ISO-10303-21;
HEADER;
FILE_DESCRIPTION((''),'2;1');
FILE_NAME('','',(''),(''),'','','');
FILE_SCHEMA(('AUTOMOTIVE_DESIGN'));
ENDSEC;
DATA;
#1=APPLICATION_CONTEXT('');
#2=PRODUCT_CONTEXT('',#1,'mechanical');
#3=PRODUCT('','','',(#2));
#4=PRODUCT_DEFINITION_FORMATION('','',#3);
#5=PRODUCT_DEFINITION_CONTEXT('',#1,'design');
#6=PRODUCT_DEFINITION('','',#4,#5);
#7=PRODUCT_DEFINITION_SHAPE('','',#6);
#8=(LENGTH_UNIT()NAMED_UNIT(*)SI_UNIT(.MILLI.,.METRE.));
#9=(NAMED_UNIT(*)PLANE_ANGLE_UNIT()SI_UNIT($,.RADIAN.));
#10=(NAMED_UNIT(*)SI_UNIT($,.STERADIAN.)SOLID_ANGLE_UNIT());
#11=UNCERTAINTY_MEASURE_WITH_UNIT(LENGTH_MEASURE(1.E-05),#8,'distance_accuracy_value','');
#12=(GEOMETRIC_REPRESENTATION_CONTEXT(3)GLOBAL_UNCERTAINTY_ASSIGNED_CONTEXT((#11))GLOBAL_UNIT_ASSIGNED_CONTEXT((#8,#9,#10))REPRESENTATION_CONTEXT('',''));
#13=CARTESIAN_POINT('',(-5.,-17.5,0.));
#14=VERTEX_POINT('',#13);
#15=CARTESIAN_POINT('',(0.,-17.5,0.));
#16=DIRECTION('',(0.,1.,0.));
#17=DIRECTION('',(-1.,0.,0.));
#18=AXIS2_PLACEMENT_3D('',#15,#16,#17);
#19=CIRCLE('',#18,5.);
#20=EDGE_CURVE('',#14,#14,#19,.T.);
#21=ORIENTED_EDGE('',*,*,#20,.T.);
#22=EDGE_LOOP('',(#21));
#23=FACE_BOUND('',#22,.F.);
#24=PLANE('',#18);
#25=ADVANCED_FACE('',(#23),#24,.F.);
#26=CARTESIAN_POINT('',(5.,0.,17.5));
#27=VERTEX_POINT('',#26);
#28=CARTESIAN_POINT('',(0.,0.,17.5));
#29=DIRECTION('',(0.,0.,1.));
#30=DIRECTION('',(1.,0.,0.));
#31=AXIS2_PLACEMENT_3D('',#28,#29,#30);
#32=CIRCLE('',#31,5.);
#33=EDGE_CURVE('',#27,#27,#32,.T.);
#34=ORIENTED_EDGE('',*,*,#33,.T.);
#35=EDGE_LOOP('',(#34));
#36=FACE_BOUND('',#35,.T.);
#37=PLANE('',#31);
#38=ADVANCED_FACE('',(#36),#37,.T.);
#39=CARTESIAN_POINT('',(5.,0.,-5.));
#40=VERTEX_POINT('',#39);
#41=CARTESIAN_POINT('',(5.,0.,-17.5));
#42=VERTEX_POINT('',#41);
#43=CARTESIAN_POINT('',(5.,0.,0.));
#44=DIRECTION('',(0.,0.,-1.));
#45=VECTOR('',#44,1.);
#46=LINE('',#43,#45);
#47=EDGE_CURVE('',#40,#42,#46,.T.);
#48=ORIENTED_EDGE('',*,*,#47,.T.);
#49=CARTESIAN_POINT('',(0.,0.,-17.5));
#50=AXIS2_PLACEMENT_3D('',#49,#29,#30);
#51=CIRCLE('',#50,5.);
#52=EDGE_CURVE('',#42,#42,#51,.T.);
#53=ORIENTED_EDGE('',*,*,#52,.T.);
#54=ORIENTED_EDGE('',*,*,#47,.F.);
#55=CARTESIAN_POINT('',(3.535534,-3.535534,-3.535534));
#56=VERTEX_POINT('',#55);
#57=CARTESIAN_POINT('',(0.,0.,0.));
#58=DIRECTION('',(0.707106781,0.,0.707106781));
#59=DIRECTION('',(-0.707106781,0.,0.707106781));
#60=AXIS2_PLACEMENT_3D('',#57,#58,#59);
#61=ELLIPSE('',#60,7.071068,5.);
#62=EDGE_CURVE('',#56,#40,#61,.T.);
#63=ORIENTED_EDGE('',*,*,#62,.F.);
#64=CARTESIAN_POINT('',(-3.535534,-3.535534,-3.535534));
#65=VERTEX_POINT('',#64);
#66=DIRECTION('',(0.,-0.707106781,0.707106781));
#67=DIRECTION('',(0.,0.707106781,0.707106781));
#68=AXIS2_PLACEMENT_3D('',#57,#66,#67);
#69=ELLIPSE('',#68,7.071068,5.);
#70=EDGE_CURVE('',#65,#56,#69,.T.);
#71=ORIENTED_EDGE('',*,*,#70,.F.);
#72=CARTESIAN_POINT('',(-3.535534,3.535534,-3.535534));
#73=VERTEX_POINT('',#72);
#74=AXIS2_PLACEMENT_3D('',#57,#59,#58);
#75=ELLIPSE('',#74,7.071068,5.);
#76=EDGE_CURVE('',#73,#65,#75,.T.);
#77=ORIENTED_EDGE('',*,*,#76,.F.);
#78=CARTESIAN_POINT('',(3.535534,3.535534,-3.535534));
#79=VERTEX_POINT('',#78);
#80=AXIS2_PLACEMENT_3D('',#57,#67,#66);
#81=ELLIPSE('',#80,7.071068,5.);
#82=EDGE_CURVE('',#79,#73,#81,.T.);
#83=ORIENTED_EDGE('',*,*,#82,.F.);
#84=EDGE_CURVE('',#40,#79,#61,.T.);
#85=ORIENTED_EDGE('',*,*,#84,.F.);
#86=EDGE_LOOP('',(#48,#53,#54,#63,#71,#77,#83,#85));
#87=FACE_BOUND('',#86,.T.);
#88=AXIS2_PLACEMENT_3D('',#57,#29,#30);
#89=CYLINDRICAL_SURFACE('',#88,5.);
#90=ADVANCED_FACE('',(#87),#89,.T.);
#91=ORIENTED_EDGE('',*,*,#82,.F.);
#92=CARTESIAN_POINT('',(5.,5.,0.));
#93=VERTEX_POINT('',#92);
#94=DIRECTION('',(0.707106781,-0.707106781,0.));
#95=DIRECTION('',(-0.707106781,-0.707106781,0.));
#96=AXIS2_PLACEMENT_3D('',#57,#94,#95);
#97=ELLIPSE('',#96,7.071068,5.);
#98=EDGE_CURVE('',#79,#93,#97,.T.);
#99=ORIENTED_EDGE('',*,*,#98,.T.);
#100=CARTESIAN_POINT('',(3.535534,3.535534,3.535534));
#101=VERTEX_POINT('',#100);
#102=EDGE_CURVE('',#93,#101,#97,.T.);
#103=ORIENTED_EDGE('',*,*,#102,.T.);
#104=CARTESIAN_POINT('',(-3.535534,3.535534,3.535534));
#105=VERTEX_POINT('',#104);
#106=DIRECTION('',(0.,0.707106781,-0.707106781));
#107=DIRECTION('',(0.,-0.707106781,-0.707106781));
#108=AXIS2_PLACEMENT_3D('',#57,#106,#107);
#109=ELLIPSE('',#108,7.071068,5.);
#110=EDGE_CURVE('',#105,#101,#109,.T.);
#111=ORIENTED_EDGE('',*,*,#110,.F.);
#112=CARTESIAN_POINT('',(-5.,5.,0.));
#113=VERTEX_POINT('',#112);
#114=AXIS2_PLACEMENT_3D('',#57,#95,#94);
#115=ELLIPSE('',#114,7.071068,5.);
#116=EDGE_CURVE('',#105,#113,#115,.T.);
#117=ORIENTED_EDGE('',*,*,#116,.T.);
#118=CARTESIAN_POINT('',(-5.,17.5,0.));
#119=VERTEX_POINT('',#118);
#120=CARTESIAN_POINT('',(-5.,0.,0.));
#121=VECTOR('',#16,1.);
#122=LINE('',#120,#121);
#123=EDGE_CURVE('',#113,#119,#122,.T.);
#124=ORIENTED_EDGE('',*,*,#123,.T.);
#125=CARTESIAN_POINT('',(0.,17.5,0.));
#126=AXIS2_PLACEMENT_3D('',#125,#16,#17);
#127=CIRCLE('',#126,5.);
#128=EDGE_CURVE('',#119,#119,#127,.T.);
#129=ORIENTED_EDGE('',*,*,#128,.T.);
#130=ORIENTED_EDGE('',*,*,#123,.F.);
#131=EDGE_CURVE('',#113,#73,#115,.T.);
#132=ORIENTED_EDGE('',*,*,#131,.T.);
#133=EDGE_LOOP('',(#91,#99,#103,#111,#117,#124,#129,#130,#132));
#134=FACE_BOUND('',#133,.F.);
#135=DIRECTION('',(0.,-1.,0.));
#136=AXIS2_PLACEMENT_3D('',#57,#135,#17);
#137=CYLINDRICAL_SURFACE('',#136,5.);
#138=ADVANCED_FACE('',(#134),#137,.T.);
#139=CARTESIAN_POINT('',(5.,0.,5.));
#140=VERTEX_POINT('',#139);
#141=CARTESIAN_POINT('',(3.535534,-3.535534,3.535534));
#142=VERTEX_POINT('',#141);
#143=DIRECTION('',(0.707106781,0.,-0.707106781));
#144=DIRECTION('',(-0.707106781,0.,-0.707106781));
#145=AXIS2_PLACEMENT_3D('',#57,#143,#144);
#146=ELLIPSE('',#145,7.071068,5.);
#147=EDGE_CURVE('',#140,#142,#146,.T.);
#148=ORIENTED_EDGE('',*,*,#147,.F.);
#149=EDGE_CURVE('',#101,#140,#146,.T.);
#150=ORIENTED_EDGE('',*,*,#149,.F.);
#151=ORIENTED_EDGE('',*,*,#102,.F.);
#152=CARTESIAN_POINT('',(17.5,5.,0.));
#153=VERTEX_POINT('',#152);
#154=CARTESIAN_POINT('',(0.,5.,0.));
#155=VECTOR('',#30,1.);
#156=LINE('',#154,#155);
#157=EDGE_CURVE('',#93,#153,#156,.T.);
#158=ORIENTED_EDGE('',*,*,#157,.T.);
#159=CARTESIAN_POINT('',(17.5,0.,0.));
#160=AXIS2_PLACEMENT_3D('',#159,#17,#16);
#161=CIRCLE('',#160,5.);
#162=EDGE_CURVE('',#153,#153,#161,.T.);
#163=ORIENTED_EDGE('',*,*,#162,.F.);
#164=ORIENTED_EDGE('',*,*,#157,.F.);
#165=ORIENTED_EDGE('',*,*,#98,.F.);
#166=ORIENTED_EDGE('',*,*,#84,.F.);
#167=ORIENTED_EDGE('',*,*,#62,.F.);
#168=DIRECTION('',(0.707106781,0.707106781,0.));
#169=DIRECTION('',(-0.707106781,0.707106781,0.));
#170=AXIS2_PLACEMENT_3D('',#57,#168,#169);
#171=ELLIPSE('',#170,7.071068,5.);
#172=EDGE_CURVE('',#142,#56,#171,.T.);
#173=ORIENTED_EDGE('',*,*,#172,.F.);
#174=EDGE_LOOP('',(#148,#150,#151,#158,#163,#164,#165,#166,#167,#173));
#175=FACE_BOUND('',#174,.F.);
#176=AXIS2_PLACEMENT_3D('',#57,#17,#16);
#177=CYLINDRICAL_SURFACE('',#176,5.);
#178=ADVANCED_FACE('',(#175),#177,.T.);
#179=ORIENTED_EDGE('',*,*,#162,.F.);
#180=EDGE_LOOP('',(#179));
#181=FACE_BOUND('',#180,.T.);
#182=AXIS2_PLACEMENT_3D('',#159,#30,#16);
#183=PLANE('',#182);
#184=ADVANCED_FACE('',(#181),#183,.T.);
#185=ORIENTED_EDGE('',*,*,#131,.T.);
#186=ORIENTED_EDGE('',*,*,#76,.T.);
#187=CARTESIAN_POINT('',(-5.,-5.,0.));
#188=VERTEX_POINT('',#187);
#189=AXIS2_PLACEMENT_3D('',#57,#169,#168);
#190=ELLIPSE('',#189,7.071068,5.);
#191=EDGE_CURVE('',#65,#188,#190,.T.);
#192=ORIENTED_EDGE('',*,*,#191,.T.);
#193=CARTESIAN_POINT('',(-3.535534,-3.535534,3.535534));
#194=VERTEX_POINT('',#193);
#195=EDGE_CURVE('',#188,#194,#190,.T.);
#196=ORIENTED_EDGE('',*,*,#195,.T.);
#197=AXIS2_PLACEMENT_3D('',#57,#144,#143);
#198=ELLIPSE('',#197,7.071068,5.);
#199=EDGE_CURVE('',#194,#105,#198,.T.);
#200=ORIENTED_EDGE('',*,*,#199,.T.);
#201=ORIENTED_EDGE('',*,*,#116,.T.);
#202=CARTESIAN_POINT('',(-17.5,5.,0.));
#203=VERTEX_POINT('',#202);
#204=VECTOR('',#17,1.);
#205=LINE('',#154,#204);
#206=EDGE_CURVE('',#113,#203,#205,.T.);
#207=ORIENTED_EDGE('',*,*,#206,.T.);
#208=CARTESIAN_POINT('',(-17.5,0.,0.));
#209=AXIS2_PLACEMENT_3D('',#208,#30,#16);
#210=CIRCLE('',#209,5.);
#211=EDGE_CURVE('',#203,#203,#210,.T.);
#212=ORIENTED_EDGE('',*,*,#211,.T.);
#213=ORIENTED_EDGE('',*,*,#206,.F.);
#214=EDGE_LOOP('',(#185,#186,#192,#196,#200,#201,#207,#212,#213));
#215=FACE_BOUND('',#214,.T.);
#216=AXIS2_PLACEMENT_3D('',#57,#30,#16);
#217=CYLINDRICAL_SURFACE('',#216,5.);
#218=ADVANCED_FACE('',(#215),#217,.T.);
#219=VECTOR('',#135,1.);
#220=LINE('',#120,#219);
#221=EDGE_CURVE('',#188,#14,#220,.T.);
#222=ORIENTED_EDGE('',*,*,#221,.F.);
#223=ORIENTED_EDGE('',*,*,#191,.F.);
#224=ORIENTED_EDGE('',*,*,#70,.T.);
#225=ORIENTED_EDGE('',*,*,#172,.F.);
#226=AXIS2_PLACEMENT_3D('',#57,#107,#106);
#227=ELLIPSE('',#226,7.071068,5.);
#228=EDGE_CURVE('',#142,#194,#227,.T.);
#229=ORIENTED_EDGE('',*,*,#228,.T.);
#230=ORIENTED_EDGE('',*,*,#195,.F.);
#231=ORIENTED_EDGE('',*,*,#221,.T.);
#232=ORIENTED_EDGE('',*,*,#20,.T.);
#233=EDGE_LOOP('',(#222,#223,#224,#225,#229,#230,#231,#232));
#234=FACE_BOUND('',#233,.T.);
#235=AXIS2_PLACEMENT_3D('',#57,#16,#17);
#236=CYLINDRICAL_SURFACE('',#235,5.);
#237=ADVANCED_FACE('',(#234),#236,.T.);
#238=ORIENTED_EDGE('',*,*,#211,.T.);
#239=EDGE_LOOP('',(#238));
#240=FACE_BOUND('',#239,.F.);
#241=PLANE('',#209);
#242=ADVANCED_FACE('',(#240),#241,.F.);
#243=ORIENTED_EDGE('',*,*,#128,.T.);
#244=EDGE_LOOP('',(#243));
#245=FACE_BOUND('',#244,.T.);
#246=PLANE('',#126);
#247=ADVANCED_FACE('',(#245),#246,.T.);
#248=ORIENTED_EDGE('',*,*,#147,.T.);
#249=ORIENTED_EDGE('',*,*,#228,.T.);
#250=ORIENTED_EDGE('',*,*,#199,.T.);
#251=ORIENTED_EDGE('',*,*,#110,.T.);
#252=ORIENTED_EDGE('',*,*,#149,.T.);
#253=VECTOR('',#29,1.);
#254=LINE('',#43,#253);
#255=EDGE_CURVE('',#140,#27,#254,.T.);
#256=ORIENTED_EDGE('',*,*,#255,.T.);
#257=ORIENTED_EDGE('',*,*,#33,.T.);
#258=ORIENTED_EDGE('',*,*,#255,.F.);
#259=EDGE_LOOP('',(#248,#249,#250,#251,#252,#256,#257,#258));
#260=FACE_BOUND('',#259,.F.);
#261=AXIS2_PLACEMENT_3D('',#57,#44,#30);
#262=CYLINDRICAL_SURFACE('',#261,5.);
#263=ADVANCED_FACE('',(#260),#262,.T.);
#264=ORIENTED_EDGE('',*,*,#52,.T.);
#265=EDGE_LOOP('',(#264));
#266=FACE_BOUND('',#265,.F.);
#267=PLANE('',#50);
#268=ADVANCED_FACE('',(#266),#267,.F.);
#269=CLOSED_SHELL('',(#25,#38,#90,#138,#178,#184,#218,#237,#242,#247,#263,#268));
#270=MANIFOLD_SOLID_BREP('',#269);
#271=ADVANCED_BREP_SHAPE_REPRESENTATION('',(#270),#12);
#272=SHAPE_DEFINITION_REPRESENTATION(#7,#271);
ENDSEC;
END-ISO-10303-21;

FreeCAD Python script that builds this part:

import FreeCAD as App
import Part
import Sketcher

V = App.Vector

doc = App.newDocument("Part")
params = doc.addObject("Spreadsheet::Sheet", "Params")
for row, (alias, value) in enumerate([
    ("sketch1_diameter", "10 mm"),
    ("pad1_length", "35 mm"),
    ("sketch2_diameter", "10 mm"),
    ("pad2_length", "35 mm"),
    ("sketch3_diameter", "10 mm"),
    ("pad3_length", "35 mm"),
], start=1):
    params.set(f"A{row}", alias)
    params.set(f"B{row}", "=" + value)
    params.setAlias(f"B{row}", alias)

body = doc.addObject("PartDesign::Body", "Body")

# Sketch on XY plane
sketch1 = body.newObject("Sketcher::SketchObject", "Sketch")
sketch1.AttachmentSupport = (doc.getObject("XY_Plane"), [""])
sketch1.MapMode = "FlatFace"
sketch1.addGeometry(Part.Circle(V(0, 0, 0), V(0, 0, 1), 5), False)
sketch1.addConstraint([
    Sketcher.Constraint("Coincident", 0, 3, -1, 1),
    Sketcher.Constraint("Diameter", 0, 10.0),
])
sketch1.setExpression("Constraints[1]", "Params.sketch1_diameter")
pad1 = body.newObject("PartDesign::Pad", "Pad")
pad1.Profile = sketch1
pad1.setExpression("Length", "Params.pad1_length")
pad1.Midplane = True

# Sketch on XZ plane
sketch2 = body.newObject("Sketcher::SketchObject", "Sketch001")
sketch2.AttachmentSupport = (doc.getObject("XZ_Plane"), [""])
sketch2.MapMode = "FlatFace"
sketch2.addGeometry(Part.Circle(V(0, 0, 0), V(0, 0, 1), 5), False)
sketch2.addConstraint([
    Sketcher.Constraint("Coincident", 0, 3, -1, 1),
    Sketcher.Constraint("Diameter", 0, 10.0),
])
sketch2.setExpression("Constraints[1]", "Params.sketch2_diameter")
pad2 = body.newObject("PartDesign::Pad", "Pad001")
pad2.Profile = sketch2
pad2.setExpression("Length", "Params.pad2_length")
pad2.Midplane = True

# Sketch on YZ plane
sketch3 = body.newObject("Sketcher::SketchObject", "Sketch002")
sketch3.AttachmentSupport = (doc.getObject("YZ_Plane"), [""])
sketch3.MapMode = "FlatFace"
sketch3.addGeometry(Part.Circle(V(0, 0, 0), V(0, 0, 1), 5), False)
sketch3.addConstraint([
    Sketcher.Constraint("Coincident", 0, 3, -1, 1),
    Sketcher.Constraint("Diameter", 0, 10.0),
])
sketch3.setExpression("Constraints[1]", "Params.sketch3_diameter")
pad3 = body.newObject("PartDesign::Pad", "Pad002")
pad3.Profile = sketch3
pad3.setExpression("Length", "Params.pad3_length")
pad3.Midplane = True

doc.recompute()
